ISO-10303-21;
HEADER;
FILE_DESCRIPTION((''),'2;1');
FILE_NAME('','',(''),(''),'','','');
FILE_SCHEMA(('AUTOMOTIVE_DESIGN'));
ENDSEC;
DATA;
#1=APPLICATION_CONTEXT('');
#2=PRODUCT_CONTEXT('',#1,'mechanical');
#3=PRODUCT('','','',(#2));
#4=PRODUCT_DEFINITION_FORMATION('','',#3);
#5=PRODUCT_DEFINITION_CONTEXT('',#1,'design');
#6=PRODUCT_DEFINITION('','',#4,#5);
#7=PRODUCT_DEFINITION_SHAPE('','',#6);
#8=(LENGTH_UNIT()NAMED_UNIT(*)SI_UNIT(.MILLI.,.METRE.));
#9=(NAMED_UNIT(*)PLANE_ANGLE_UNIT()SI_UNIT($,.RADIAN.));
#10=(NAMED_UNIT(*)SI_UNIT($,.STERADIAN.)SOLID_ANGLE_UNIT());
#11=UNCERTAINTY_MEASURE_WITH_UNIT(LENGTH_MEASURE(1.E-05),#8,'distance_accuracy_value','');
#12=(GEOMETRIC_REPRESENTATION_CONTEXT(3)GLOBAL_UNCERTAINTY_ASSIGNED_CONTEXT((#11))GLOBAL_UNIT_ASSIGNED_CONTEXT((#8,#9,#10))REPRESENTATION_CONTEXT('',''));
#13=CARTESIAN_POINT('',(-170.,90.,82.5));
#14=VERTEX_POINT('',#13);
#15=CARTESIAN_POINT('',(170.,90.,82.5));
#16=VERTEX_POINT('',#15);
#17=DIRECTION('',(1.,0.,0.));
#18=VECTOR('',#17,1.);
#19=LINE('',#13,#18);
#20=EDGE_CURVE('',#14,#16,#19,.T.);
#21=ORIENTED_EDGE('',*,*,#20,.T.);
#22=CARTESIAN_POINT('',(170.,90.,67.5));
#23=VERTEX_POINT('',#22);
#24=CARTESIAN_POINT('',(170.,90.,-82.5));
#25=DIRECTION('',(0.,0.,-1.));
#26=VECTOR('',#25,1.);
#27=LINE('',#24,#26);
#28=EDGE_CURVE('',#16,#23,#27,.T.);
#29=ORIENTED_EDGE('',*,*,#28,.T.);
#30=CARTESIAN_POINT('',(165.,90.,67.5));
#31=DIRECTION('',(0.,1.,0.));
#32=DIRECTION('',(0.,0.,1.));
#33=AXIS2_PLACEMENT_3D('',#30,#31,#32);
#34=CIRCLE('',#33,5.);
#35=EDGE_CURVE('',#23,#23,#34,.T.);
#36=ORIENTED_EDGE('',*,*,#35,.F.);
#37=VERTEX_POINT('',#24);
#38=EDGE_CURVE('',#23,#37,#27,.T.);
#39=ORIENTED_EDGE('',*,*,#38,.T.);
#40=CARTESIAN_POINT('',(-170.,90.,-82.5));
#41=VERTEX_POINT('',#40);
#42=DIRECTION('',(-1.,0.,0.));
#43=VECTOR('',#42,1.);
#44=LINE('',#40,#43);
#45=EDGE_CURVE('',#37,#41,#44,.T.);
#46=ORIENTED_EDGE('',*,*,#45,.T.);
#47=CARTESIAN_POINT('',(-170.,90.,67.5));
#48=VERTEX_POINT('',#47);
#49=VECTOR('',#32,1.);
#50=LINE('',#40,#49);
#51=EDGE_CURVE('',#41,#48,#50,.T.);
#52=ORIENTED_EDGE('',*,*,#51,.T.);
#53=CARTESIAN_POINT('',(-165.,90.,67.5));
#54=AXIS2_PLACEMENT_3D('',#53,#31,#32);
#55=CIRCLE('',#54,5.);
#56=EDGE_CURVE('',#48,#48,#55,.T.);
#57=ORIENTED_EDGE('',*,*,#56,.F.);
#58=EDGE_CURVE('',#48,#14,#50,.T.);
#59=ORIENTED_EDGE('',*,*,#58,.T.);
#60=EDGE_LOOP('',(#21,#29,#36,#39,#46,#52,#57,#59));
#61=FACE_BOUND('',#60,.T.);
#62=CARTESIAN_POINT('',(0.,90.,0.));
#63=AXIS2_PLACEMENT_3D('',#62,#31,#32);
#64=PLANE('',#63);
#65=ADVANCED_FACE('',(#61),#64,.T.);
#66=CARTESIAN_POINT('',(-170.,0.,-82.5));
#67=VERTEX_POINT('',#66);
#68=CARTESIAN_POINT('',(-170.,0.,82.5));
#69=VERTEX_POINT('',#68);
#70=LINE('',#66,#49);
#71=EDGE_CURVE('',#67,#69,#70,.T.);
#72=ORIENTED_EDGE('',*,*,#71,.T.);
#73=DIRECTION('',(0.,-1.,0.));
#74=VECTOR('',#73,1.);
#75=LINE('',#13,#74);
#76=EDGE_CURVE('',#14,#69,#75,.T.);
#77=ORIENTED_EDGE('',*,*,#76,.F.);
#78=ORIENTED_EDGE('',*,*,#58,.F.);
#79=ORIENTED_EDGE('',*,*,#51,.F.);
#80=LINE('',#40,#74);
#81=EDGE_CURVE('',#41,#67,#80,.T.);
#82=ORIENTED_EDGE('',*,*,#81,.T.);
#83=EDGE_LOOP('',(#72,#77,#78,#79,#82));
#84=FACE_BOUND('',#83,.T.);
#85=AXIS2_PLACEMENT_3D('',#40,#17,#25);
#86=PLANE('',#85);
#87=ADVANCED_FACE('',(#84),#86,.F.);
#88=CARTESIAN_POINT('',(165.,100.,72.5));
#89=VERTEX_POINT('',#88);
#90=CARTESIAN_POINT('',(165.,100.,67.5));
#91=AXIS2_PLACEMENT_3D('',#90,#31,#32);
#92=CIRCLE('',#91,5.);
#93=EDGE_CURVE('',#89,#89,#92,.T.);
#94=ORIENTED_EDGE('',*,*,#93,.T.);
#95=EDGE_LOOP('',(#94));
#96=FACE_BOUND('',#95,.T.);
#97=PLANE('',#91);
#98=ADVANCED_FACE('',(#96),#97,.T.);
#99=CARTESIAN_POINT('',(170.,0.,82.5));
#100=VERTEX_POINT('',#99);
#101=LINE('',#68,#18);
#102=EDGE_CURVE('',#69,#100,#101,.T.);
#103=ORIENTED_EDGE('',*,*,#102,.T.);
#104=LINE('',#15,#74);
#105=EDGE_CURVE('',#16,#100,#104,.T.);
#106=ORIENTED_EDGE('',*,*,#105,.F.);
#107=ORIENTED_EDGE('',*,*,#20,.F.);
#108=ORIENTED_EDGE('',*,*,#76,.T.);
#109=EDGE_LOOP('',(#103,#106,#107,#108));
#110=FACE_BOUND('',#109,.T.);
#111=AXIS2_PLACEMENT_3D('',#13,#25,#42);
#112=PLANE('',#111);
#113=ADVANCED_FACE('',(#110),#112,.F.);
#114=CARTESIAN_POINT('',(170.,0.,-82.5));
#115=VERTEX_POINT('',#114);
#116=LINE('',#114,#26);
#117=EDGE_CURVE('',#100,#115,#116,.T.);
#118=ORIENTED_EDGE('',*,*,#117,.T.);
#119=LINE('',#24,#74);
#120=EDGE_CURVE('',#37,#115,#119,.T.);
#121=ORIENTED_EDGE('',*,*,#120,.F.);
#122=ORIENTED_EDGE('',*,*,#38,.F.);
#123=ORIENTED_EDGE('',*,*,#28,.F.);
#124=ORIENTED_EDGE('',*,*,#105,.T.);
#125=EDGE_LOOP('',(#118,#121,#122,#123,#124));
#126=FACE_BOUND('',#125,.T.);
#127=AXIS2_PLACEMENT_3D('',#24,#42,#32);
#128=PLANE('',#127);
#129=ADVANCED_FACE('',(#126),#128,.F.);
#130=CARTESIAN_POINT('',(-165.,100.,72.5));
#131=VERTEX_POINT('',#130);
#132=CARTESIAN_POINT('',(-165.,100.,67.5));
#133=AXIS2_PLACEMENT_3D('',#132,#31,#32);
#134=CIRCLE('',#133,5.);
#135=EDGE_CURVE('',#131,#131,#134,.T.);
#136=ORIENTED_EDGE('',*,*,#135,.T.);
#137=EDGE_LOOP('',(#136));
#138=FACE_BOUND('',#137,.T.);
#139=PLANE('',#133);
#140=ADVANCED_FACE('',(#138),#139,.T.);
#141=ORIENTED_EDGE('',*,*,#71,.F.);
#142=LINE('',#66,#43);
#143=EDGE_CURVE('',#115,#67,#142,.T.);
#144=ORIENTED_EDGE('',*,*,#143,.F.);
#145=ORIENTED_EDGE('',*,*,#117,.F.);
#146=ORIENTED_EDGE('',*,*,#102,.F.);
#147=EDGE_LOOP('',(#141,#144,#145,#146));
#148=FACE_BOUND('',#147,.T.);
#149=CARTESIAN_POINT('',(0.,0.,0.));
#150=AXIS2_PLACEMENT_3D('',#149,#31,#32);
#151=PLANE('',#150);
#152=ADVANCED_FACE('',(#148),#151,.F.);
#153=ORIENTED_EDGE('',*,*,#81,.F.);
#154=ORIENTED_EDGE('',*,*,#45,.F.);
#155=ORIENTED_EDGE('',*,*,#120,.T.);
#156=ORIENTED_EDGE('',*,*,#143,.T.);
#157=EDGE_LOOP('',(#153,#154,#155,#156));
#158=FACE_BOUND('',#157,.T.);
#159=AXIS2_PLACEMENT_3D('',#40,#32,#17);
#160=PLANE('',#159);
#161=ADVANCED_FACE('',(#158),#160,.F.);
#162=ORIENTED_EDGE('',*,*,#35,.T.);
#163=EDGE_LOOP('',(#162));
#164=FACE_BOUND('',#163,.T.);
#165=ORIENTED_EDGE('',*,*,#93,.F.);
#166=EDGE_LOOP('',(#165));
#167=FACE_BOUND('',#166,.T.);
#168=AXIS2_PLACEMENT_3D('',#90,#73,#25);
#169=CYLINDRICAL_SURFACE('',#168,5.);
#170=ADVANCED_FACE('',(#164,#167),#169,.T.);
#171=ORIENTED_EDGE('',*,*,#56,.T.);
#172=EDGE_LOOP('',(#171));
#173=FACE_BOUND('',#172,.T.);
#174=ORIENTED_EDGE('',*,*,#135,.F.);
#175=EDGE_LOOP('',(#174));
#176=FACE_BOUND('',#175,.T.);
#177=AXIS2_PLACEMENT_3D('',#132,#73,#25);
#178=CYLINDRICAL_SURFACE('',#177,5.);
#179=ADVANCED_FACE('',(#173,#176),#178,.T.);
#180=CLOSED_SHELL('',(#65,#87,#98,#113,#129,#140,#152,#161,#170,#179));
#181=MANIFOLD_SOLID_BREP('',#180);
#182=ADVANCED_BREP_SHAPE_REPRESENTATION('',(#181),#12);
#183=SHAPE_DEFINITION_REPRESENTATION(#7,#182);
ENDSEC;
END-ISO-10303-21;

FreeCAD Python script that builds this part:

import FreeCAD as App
import Part
import Sketcher
from FreeCAD import Vector
Q = App.Units.Quantity

doc = App.newDocument("Part")
body = doc.addObject("PartDesign::Body", "Body")

# Sketch on XZ plane
sketch1 = body.newObject("Sketcher::SketchObject", "Sketch")
sketch1.AttachmentSupport = (doc.getObject("XZ_Plane"), [""])
sketch1.MapMode = "FlatFace"
sketch1.addGeometry([
    Part.LineSegment(Vector(-170, -82, 0), Vector(-170, 82, 0)),
    Part.LineSegment(Vector(-170, 82, 0), Vector(170, 82, 0)),
    Part.LineSegment(Vector(170, 82, 0), Vector(170, -82, 0)),
    Part.LineSegment(Vector(170, -82, 0), Vector(-170, -82, 0)),
], False)
sketch1.addConstraint([
    Sketcher.Constraint("Coincident", 0, 2, 1, 1),
    Sketcher.Constraint("Coincident", 1, 2, 2, 1),
    Sketcher.Constraint("Coincident", 2, 2, 3, 1),
    Sketcher.Constraint("Coincident", 3, 2, 0, 1),
    Sketcher.Constraint("Vertical", 0),
    Sketcher.Constraint("Horizontal", 1),
    Sketcher.Constraint("Vertical", 2),
    Sketcher.Constraint("Horizontal", 3),
    Sketcher.Constraint("Symmetric", 0, 2, 2, 2, -1, 1),
    Sketcher.Constraint("DistanceX", 1, 1, 1, 2, Q("340 mm")),
    Sketcher.Constraint("DistanceY", 0, 1, 0, 2, Q("165 mm")),
])
pad1 = body.newObject("PartDesign::Pad", "Pad")
pad1.Profile = sketch1
pad1.Length = 90
pad1.Reversed = True

# Sketch on XZ plane
sketch2 = body.newObject("Sketcher::SketchObject", "Sketch001")
sketch2.AttachmentSupport = (doc.getObject("XZ_Plane"), [""])
sketch2.MapMode = "FlatFace"
sketch2.AttachmentOffset = App.Placement(Vector(0, 0, -90), App.Rotation())
sketch2.addGeometry([
    Part.Circle(Vector(-165, 68, 0), Vector(0, 0, 1), 5),
    Part.Circle(Vector(165, 68, 0), Vector(0, 0, 1), 5),
], False)
sketch2.addConstraint([
    Sketcher.Constraint("Equal", 0, 1),
    Sketcher.Constraint("Symmetric", 0, 3, 1, 3, -2),
    Sketcher.Constraint("Diameter", 0, Q("10 mm")),
    Sketcher.Constraint("DistanceX", 0, 3, -1, 1, Q("165 mm")),
    Sketcher.Constraint("DistanceY", -1, 1, 0, 3, Q("67.5 mm")),
])
pad2 = body.newObject("PartDesign::Pad", "Pad001")
pad2.Profile = sketch2
pad2.Length = 10
pad2.Reversed = True

doc.recompute()
